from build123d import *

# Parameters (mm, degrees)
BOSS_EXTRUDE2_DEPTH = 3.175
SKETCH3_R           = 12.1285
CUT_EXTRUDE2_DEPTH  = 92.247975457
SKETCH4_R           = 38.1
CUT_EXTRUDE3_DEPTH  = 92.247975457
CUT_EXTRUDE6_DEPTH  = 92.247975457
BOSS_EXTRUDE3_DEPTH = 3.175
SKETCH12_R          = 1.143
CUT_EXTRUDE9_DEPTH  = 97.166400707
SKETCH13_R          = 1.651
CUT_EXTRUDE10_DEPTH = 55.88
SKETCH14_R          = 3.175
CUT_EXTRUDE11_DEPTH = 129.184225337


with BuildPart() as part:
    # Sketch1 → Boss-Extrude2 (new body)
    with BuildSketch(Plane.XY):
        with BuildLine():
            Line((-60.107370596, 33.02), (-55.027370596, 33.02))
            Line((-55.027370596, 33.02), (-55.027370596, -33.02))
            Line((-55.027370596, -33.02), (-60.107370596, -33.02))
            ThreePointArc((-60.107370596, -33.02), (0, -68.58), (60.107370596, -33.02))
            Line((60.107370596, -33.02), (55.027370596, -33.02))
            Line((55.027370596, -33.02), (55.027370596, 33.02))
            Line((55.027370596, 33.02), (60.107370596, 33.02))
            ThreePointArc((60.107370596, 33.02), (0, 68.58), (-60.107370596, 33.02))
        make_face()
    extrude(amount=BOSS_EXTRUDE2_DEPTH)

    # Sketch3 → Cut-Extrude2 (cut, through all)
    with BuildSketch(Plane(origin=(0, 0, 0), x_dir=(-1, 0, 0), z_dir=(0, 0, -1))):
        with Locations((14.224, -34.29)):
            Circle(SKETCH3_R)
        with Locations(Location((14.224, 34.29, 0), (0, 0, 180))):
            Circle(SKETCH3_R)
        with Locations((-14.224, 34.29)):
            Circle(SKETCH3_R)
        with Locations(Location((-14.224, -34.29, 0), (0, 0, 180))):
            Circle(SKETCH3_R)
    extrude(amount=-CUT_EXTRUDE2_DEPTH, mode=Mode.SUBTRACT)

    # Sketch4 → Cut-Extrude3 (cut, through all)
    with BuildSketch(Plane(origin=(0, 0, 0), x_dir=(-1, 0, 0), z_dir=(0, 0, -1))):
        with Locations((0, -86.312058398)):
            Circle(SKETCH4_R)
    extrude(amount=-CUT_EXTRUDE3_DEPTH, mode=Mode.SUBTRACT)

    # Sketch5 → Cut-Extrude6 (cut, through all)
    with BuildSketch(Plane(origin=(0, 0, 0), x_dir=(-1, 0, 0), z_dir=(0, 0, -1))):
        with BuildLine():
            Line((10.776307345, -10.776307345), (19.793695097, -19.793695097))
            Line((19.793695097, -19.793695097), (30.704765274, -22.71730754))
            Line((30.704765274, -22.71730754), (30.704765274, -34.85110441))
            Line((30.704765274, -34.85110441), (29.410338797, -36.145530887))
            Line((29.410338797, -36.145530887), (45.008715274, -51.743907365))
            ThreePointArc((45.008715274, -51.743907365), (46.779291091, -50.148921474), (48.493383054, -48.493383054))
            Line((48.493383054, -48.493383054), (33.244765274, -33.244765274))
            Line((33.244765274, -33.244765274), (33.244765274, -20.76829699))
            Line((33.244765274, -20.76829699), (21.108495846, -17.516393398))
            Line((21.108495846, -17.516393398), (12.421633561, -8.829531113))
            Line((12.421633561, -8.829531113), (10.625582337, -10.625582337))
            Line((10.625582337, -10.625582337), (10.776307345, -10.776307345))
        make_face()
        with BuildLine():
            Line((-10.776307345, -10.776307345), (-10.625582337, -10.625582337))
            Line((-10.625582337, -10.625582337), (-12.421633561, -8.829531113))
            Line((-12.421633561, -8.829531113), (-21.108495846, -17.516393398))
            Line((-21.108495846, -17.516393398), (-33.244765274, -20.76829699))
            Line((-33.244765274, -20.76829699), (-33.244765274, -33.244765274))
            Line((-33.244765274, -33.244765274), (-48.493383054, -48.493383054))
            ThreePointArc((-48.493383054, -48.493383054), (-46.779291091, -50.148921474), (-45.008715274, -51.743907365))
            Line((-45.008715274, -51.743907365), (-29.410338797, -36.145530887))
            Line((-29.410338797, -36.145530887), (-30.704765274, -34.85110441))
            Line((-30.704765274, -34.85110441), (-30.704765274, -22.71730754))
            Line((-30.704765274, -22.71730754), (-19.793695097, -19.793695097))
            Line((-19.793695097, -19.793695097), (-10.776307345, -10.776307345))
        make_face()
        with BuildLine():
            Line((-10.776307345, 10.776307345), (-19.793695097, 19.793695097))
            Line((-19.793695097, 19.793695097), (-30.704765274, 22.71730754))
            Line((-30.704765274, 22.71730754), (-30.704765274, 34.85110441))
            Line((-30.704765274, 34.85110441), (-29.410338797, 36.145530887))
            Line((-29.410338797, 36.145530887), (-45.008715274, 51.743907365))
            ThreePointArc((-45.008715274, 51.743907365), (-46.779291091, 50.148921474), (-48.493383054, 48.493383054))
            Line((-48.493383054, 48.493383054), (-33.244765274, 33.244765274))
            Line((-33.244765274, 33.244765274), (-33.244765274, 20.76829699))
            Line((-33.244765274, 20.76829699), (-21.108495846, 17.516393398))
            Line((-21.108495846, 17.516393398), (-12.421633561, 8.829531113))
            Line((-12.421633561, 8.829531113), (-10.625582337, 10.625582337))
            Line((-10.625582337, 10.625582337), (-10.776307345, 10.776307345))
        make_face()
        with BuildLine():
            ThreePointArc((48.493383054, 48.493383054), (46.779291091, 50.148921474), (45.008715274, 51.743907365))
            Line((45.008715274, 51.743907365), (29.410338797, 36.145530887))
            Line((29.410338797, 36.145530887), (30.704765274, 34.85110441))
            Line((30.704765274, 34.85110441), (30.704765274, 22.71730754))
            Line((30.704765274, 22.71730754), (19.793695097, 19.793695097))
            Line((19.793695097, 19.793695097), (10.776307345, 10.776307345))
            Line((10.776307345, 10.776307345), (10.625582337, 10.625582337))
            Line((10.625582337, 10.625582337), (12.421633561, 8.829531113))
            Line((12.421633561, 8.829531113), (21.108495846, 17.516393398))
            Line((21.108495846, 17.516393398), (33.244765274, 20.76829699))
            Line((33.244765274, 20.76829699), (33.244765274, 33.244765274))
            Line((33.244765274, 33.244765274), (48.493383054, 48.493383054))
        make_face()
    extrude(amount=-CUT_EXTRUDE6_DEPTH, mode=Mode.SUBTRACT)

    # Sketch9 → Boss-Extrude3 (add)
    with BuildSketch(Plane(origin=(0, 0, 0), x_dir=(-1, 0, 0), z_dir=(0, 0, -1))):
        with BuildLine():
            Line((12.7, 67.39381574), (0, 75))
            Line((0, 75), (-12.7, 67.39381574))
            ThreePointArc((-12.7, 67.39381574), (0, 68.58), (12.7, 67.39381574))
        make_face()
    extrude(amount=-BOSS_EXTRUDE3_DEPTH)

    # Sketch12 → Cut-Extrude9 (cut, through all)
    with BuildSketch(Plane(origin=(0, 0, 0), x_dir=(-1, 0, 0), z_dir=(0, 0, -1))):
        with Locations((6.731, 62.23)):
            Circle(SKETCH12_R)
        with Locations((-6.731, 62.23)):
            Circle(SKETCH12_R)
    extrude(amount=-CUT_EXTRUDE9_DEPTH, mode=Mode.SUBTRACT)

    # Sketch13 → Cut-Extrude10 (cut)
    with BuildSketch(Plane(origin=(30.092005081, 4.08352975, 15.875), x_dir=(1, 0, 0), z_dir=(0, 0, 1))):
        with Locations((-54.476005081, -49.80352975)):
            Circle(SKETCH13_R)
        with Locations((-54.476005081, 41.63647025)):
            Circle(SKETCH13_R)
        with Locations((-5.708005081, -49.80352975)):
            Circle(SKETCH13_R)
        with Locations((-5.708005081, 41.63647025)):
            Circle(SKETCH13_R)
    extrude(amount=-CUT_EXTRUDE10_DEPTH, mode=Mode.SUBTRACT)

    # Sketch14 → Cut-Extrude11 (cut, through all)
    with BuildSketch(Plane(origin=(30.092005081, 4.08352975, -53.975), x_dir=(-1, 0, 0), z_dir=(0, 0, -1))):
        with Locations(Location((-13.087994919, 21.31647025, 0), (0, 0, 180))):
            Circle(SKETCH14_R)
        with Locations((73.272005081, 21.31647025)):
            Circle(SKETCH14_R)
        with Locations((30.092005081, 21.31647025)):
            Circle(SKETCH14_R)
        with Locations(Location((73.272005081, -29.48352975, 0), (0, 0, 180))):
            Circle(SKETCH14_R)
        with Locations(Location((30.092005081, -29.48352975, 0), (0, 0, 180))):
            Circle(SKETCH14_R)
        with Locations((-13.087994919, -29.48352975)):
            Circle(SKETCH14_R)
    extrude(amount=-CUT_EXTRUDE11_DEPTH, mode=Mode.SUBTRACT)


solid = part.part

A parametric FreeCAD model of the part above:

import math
import FreeCAD as App
import Part
import Sketcher
from FreeCAD import Vector
Q = App.Units.Quantity

doc = App.newDocument("Part")
body = doc.addObject("PartDesign::Body", "Body")

sketch1 = body.newObject("Sketcher::SketchObject", "Sketch")
sketch1.AttachmentSupport = (doc.getObject("XY_Plane"), [""])
sketch1.MapMode = "FlatFace"
sketch1.addGeometry([
    Part.LineSegment(Vector(-60, 33, 0), Vector(-55, 33, 0)),
    Part.LineSegment(Vector(-55, 33, 0), Vector(-55, -33, 0)),
    Part.LineSegment(Vector(-55, -33, 0), Vector(-60, -33, 0)),
    Part.ArcOfCircle(Part.Circle(Vector(0, 0, 0), Vector(0, 0, 1), 69), math.radians(-151), math.radians(-29)),
    Part.LineSegment(Vector(60, -33, 0), Vector(55, -33, 0)),
    Part.LineSegment(Vector(55, -33, 0), Vector(55, 33, 0)),
    Part.LineSegment(Vector(55, 33, 0), Vector(60, 33, 0)),
    Part.ArcOfCircle(Part.Circle(Vector(0, 0, 0), Vector(0, 0, 1), 69), math.radians(29), math.radians(151)),
], False)
sketch1.addConstraint([
    Sketcher.Constraint("Coincident", 0, 2, 1, 1),
    Sketcher.Constraint("Coincident", 1, 2, 2, 1),
    Sketcher.Constraint("Coincident", 2, 2, 3, 1),
    Sketcher.Constraint("Coincident", 3, 2, 4, 1),
    Sketcher.Constraint("Coincident", 4, 2, 5, 1),
    Sketcher.Constraint("Coincident", 5, 2, 6, 1),
    Sketcher.Constraint("Coincident", 6, 2, 7, 1),
    Sketcher.Constraint("Coincident", 7, 2, 0, 1),
    Sketcher.Constraint("Horizontal", 0),
    Sketcher.Constraint("Vertical", 1),
    Sketcher.Constraint("Horizontal", 2),
    Sketcher.Constraint("Horizontal", 4),
    Sketcher.Constraint("Vertical", 5),
    Sketcher.Constraint("Horizontal", 6),
    Sketcher.Constraint("Coincident", 3, 3, -1, 1),
    Sketcher.Constraint("Coincident", 7, 3, -1, 1),
    Sketcher.Constraint("Equal", 3, 7),
    Sketcher.Constraint("Symmetric", 0, 2, 4, 2, -1, 1),
    Sketcher.Constraint("Horizontal", 2, 2, 3, 2),
    Sketcher.Constraint("Horizontal", 0, 2, 5, 2),
    Sketcher.Constraint("Radius", 3, Q("2.7 in")),
    Sketcher.Constraint("DistanceX", 0, 1, 0, 2, Q("0.2 in")),
    Sketcher.Constraint("DistanceY", 1, 2, 1, 1, Q("2.6 in")),
])
pad1 = body.newObject("PartDesign::Pad", "Pad")
pad1.Profile = sketch1
pad1.Length = Q("0.125 in")

sketch2 = body.newObject("Sketcher::SketchObject", "Sketch001")
sketch2.AttachmentSupport = (doc.getObject("XY_Plane"), [""])
sketch2.MapMode = "FlatFace"
sketch2.addGeometry([
    Part.Circle(Vector(-14, -34, 0), Vector(0, 0, 1), 12),
    Part.Circle(Vector(-14, 34, 0), Vector(0, 0, 1), 12),
    Part.Circle(Vector(14, 34, 0), Vector(0, 0, 1), 12),
    Part.Circle(Vector(14, -34, 0), Vector(0, 0, 1), 12),
], False)
sketch2.addConstraint([
    Sketcher.Constraint("Equal", 0, 1),
    Sketcher.Constraint("Equal", 1, 2),
    Sketcher.Constraint("Equal", 2, 3),
    Sketcher.Constraint("Symmetric", 0, 3, 2, 3, -1, 1),
    Sketcher.Constraint("Symmetric", 1, 3, 3, 3, -1, 1),
    Sketcher.Constraint("Symmetric", 1, 3, 2, 3, -2),
    Sketcher.Constraint("Diameter", 0, Q("0.955 in")),
    Sketcher.Constraint("DistanceY", 0, 3, 1, 3, Q("2.7 in")),
    Sketcher.Constraint("DistanceX", 0, 3, -1, 1, Q("0.56 in")),
])
pocket1 = body.newObject("PartDesign::Pocket", "Pocket")
pocket1.Profile = sketch2
pocket1.Type = "ThroughAll"
pocket1.Reversed = True

sketch3 = body.newObject("Sketcher::SketchObject", "Sketch002")
sketch3.AttachmentSupport = (doc.getObject("XY_Plane"), [""])
sketch3.MapMode = "FlatFace"
sketch3.addGeometry(Part.Circle(Vector(0, -86, 0), Vector(0, 0, 1), 38), False)
sketch3.addConstraint([
    Sketcher.Constraint("PointOnObject", 0, 3, -2),
    Sketcher.Constraint("Diameter", 0, Q("3 in")),
    Sketcher.Constraint("DistanceY", 0, 3, -1, 1, Q("86.312058 mm")),
])
pocket2 = body.newObject("PartDesign::Pocket", "Pocket001")
pocket2.Profile = sketch3
pocket2.Type = "ThroughAll"
pocket2.Reversed = True

sketch4 = body.newObject("Sketcher::SketchObject", "Sketch003")
sketch4.AttachmentSupport = (doc.getObject("XY_Plane"), [""])
sketch4.MapMode = "FlatFace"
sketch4.addGeometry([
    Part.LineSegment(Vector(-19.8, -19.8, 0), Vector(-30.7, -22.7, 0)),
    Part.LineSegment(Vector(-30.7, -22.7, 0), Vector(-30.7, -34.9, 0)),
    Part.LineSegment(Vector(-30.7, -34.9, 0), Vector(-29.4, -36.1, 0)),
    Part.LineSegment(Vector(-29.4, -36.1, 0), Vector(-45, -51.7, 0)),
    Part.ArcOfCircle(Part.Circle(Vector(0, 0, 0), Vector(0, 0, 1), 68.6), math.radians(-135), math.radians(-131.02)),
    Part.LineSegment(Vector(-48.5, -48.5, 0), Vector(-33.2, -33.2, 0)),
    Part.LineSegment(Vector(-33.2, -33.2, 0), Vector(-33.2, -20.8, 0)),
    Part.LineSegment(Vector(-33.2, -20.8, 0), Vector(-21.1, -17.5, 0)),
    Part.LineSegment(Vector(-21.1, -17.5, 0), Vector(-12.4, -8.8, 0)),
    Part.LineSegment(Vector(-12.4, -8.8, 0), Vector(-10.6, -10.6, 0)),
    Part.LineSegment(Vector(-10.6, -10.6, 0), Vector(-19.8, -19.8, 0)),
    Part.LineSegment(Vector(10.6, -10.6, 0), Vector(12.4, -8.8, 0)),
    Part.LineSegment(Vector(12.4, -8.8, 0), Vector(21.1, -17.5, 0)),
    Part.LineSegment(Vector(21.1, -17.5, 0), Vector(33.2, -20.8, 0)),
    Part.LineSegment(Vector(33.2, -20.8, 0), Vector(33.2, -33.2, 0)),
    Part.LineSegment(Vector(33.2, -33.2, 0), Vector(48.5, -48.5, 0)),
    Part.ArcOfCircle(Part.Circle(Vector(0, 0, 0), Vector(0, 0, 1), 68.6), math.radians(-48.98), math.radians(-45)),
    Part.LineSegment(Vector(45, -51.7, 0), Vector(29.4, -36.1, 0)),
    Part.LineSegment(Vector(29.4, -36.1, 0), Vector(30.7, -34.9, 0)),
    Part.LineSegment(Vector(30.7, -34.9, 0), Vector(30.7, -22.7, 0)),
    Part.LineSegment(Vector(30.7, -22.7, 0), Vector(19.8, -19.8, 0)),
    Part.LineSegment(Vector(19.8, -19.8, 0), Vector(10.6, -10.6, 0)),
    Part.LineSegment(Vector(19.8, 19.8, 0), Vector(30.7, 22.7, 0)),
    Part.LineSegment(Vector(30.7, 22.7, 0), Vector(30.7, 34.9, 0)),
    Part.LineSegment(Vector(30.7, 34.9, 0), Vector(29.4, 36.1, 0)),
    Part.LineSegment(Vector(29.4, 36.1, 0), Vector(45, 51.7, 0)),
    Part.ArcOfCircle(Part.Circle(Vector(0, 0, 0), Vector(0, 0, 1), 68.6), math.radians(45), math.radians(48.98)),
    Part.LineSegment(Vector(48.5, 48.5, 0), Vector(33.2, 33.2, 0)),
    Part.LineSegment(Vector(33.2, 33.2, 0), Vector(33.2, 20.8, 0)),
    Part.LineSegment(Vector(33.2, 20.8, 0), Vector(21.1, 17.5, 0)),
    Part.LineSegment(Vector(21.1, 17.5, 0), Vector(12.4, 8.8, 0)),
    Part.LineSegment(Vector(12.4, 8.8, 0), Vector(10.6, 10.6, 0)),
    Part.LineSegment(Vector(10.6, 10.6, 0), Vector(19.8, 19.8, 0)),
    Part.ArcOfCircle(Part.Circle(Vector(0, 0, 0), Vector(0, 0, 1), 68.6), math.radians(131.02), math.radians(135)),
    Part.LineSegment(Vector(-45, 51.7, 0), Vector(-29.4, 36.1, 0)),
    Part.LineSegment(Vector(-29.4, 36.1, 0), Vector(-30.7, 34.9, 0)),
    Part.LineSegment(Vector(-30.7, 34.9, 0), Vector(-30.7, 22.7, 0)),
    Part.LineSegment(Vector(-30.7, 22.7, 0), Vector(-19.8, 19.8, 0)),
    Part.LineSegment(Vector(-19.8, 19.8, 0), Vector(-10.6, 10.6, 0)),
    Part.LineSegment(Vector(-10.6, 10.6, 0), Vector(-12.4, 8.8, 0)),
    Part.LineSegment(Vector(-12.4, 8.8, 0), Vector(-21.1, 17.5, 0)),
    Part.LineSegment(Vector(-21.1, 17.5, 0), Vector(-33.2, 20.8, 0)),
    Part.LineSegment(Vector(-33.2, 20.8, 0), Vector(-33.2, 33.2, 0)),
    Part.LineSegment(Vector(-33.2, 33.2, 0), Vector(-48.5, 48.5, 0)),
], False)
sketch4.addConstraint([
    Sketcher.Constraint("Coincident", 0, 2, 1, 1),
    Sketcher.Constraint("Coincident", 1, 2, 2, 1),
    Sketcher.Constraint("Coincident", 2, 2, 3, 1),
    Sketcher.Constraint("Coincident", 3, 2, 4, 2),
    Sketcher.Constraint("Coincident", 4, 1, 5, 1),
    Sketcher.Constraint("Coincident", 5, 2, 6, 1),
    Sketcher.Constraint("Coincident", 6, 2, 7, 1),
    Sketcher.Constraint("Coincident", 7, 2, 8, 1),
    Sketcher.Constraint("Coincident", 8, 2, 9, 1),
    Sketcher.Constraint("Coincident", 9, 2, 10, 1),
    Sketcher.Constraint("Coincident", 10, 2, 0, 1),
    Sketcher.Constraint("Coincident", 11, 2, 12, 1),
    Sketcher.Constraint("Coincident", 12, 2, 13, 1),
    Sketcher.Constraint("Coincident", 13, 2, 14, 1),
    Sketcher.Constraint("Coincident", 14, 2, 15, 1),
    Sketcher.Constraint("Coincident", 15, 2, 16, 2),
    Sketcher.Constraint("Coincident", 16, 1, 17, 1),
    Sketcher.Constraint("Coincident", 17, 2, 18, 1),
    Sketcher.Constraint("Coincident", 18, 2, 19, 1),
    Sketcher.Constraint("Coincident", 19, 2, 20, 1),
    Sketcher.Constraint("Coincident", 20, 2, 21, 1),
    Sketcher.Constraint("Coincident", 21, 2, 11, 1),
    Sketcher.Constraint("Coincident", 22, 2, 23, 1),
    Sketcher.Constraint("Coincident", 23, 2, 24, 1),
    Sketcher.Constraint("Coincident", 24, 2, 25, 1),
    Sketcher.Constraint("Coincident", 25, 2, 26, 2),
    Sketcher.Constraint("Coincident", 26, 1, 27, 1),
    Sketcher.Constraint("Coincident", 27, 2, 28, 1),
    Sketcher.Constraint("Coincident", 28, 2, 29, 1),
    Sketcher.Constraint("Coincident", 29, 2, 30, 1),
    Sketcher.Constraint("Coincident", 30, 2, 31, 1),
    Sketcher.Constraint("Coincident", 31, 2, 32, 1),
    Sketcher.Constraint("Coincident", 32, 2, 22, 1),
    Sketcher.Constraint("Coincident", 33, 1, 34, 1),
    Sketcher.Constraint("Coincident", 34, 2, 35, 1),
    Sketcher.Constraint("Coincident", 35, 2, 36, 1),
    Sketcher.Constraint("Coincident", 36, 2, 37, 1),
    Sketcher.Constraint("Coincident", 37, 2, 38, 1),
    Sketcher.Constraint("Coincident", 38, 2, 39, 1),
    Sketcher.Constraint("Coincident", 39, 2, 40, 1),
    Sketcher.Constraint("Coincident", 40, 2, 41, 1),
    Sketcher.Constraint("Coincident", 41, 2, 42, 1),
    Sketcher.Constraint("Coincident", 42, 2, 43, 1),
    Sketcher.Constraint("Coincident", 43, 2, 33, 2),
    Sketcher.Constraint("Vertical", 1),
    Sketcher.Constraint("Vertical", 6),
    Sketcher.Constraint("Vertical", 14),
    Sketcher.Constraint("Vertical", 19),
    Sketcher.Constraint("Vertical", 23),
    Sketcher.Constraint("Vertical", 28),
    Sketcher.Constraint("Vertical", 36),
    Sketcher.Constraint("Vertical", 42),
    Sketcher.Constraint("Coincident", 4, 3, -1, 1),
    Sketcher.Constraint("Coincident", 16, 3, -1, 1),
    Sketcher.Constraint("Coincident", 26, 3, -1, 1),
    Sketcher.Constraint("Coincident", 33, 3, -1, 1),
    Sketcher.Constraint("Equal", 4, 16),
    Sketcher.Constraint("Equal", 16, 26),
    Sketcher.Constraint("Equal", 26, 33),
    Sketcher.Constraint("Symmetric", 0, 2, 22, 2, -1, 1),
    Sketcher.Constraint("Symmetric", 2, 2, 24, 2, -1, 1),
    Sketcher.Constraint("Symmetric", 5, 2, 27, 2, -1, 1),
    Sketcher.Constraint("Symmetric", 7, 2, 29, 2, -1, 1),
    Sketcher.Constraint("Symmetric", 8, 2, 30, 2, -1, 1),
    Sketcher.Constraint("Symmetric", 9, 2, 31, 2, -1, 1),
    Sketcher.Constraint("Symmetric", 10, 2, 32, 2, -1, 1),
    Sketcher.Constraint("Symmetric", 17, 2, 34, 2, -1, 1),
    Sketcher.Constraint("Symmetric", 18, 2, 35, 2, -1, 1),
    Sketcher.Constraint("Symmetric", 20, 2, 37, 2, -1, 1),
    Sketcher.Constraint("Symmetric", 21, 2, 38, 2, -1, 1),
    Sketcher.Constraint("Symmetric", 11, 2, 39, 2, -1, 1),
    Sketcher.Constraint("Symmetric", 12, 2, 40, 2, -1, 1),
    Sketcher.Constraint("Symmetric", 13, 2, 41, 2, -1, 1),
    Sketcher.Constraint("Symmetric", 8, 2, 11, 2, -2),
    Sketcher.Constraint("Symmetric", 7, 2, 12, 2, -2),
    Sketcher.Constraint("Symmetric", 6, 2, 13, 2, -2),
    Sketcher.Constraint("Symmetric", 2, 2, 17, 2, -2),
    Sketcher.Constraint("Symmetric", 1, 2, 18, 2, -2),
    Sketcher.Constraint("Symmetric", 10, 2, 20, 2, -2),
    Sketcher.Constraint("Symmetric", 9, 2, 21, 2, -2),
    Sketcher.Constraint("Perpendicular", 2, 3),
    Sketcher.Constraint("Parallel", 3, 5),
    Sketcher.Constraint("Parallel", 0, 7),
    Sketcher.Constraint("Parallel", 5, 8),
    Sketcher.Constraint("Perpendicular", 8, 9),
    Sketcher.Constraint("Perpendicular", 9, 10),
    Sketcher.Constraint("Parallel", 10, 11),
    Sketcher.Constraint("Parallel", 12, 15),
    Sketcher.Constraint("Parallel", 15, 17),
    Sketcher.Constraint("Parallel", 13, 20),
    Sketcher.Constraint("Parallel", 21, 24),
    Sketcher.Constraint("Perpendicular", 24, 25),
    Sketcher.Constraint("Parallel", 25, 27),
    Sketcher.Constraint("Parallel", 22, 29),
    Sketcher.Constraint("Perpendicular", 32, 34),
    Sketcher.Constraint("Parallel", 20, 37),
    Sketcher.Constraint("Parallel", 40, 43),
    Sketcher.Constraint("Horizontal", 5, 2, 14, 2),
    Sketcher.Constraint("Horizontal", 27, 2, 42, 2),
    Sketcher.Constraint("Radius", 4, Q("2.7 in")),
    Sketcher.Constraint("Angle", 0, Q("-165 deg")),
    Sketcher.Constraint("Distance", 9, Q("0.1 in")),
    Sketcher.Constraint("DistanceX", 5, 2, 1, 2, Q("0.1 in")),
    Sketcher.Constraint("DistanceY", 6, 1, 6, 2, Q("12.476468 mm")),
    Sketcher.Constraint("DistanceY", 3, 2, 0, 2, Q("29.0266 mm")),
    Sketcher.Constraint("DistanceX", 7, 2, 10, 2, Q("1.314801 mm")),
    Sketcher.Constraint("DistanceY", 6, 2, 10, 2, Q("0.974602 mm")),
    Sketcher.Constraint("Distance", 8, Q("12.285078 mm")),
    Sketcher.Constraint("DistanceY", 1, 2, 1, 1, Q("12.133797 mm")),
    Sketcher.Constraint("DistanceX", 2, 2, -1, 1, Q("29.410339 mm")),
    Sketcher.Constraint("DistanceY", 2, 2, -1, 1, Q("36.145531 mm")),
])
pocket3 = body.newObject("PartDesign::Pocket", "Pocket002")
pocket3.Profile = sketch4
pocket3.Type = "ThroughAll"
pocket3.Reversed = True

sketch5 = body.newObject("Sketcher::SketchObject", "Sketch004")
sketch5.AttachmentSupport = (doc.getObject("XY_Plane"), [""])
sketch5.MapMode = "FlatFace"
sketch5.addGeometry([
    Part.LineSegment(Vector(-13, 67, 0), Vector(0, 75, 0)),
    Part.LineSegment(Vector(0, 75, 0), Vector(13, 67, 0)),
    Part.ArcOfCircle(Part.Circle(Vector(0, 0, 0), Vector(0, 0, 1), 69), math.radians(79), math.radians(101)),
], False)
sketch5.addConstraint([
    Sketcher.Constraint("Coincident", 0, 2, 1, 1),
    Sketcher.Constraint("Coincident", 1, 2, 2, 1),
    Sketcher.Constraint("Coincident", 2, 2, 0, 1),
    Sketcher.Constraint("Coincident", 2, 3, -1, 1),
    Sketcher.Constraint("PointOnObject", 0, 2, -2),
    Sketcher.Constraint("Horizontal", 1, 2, 2, 2),
    Sketcher.Constraint("Radius", 2, Q("2.7 in")),
    Sketcher.Constraint("DistanceX", 2, 2, 1, 2, Q("1 in")),
    Sketcher.Constraint("DistanceY", -1, 1, 0, 2, Q("75 mm")),
])
pad2 = body.newObject("PartDesign::Pad", "Pad001")
pad2.Profile = sketch5
pad2.Length = Q("0.125 in")

sketch6 = body.newObject("Sketcher::SketchObject", "Sketch005")
sketch6.AttachmentSupport = (doc.getObject("XY_Plane"), [""])
sketch6.MapMode = "FlatFace"
sketch6.addGeometry([
    Part.Circle(Vector(-6.7, 62.2, 0), Vector(0, 0, 1), 1.1),
    Part.Circle(Vector(6.7, 62.2, 0), Vector(0, 0, 1), 1.1),
], False)
sketch6.addConstraint([
    Sketcher.Constraint("Equal", 0, 1),
    Sketcher.Constraint("Symmetric", 0, 3, 1, 3, -2),
    Sketcher.Constraint("Diameter", 0, Q("0.09 in")),
    Sketcher.Constraint("DistanceY", -1, 1, 0, 3, Q("2.45 in")),
    Sketcher.Constraint("DistanceX", 0, 3, 1, 3, Q("0.53 in")),
])
pocket4 = body.newObject("PartDesign::Pocket", "Pocket003")
pocket4.Profile = sketch6
pocket4.Type = "ThroughAll"
pocket4.Reversed = True

sketch7 = body.newObject("Sketcher::SketchObject", "Sketch006")
sketch7.AttachmentSupport = (doc.getObject("XY_Plane"), [""])
sketch7.MapMode = "FlatFace"
sketch7.AttachmentOffset = App.Placement(Vector(0, 0, 0.625 * 25.4), App.Rotation())
sketch7.addGeometry([
    Part.Circle(Vector(-24.4, -45.7, 0), Vector(0, 0, 1), 1.7),
    Part.Circle(Vector(-24.4, 45.7, 0), Vector(0, 0, 1), 1.7),
    Part.Circle(Vector(24.4, -45.7, 0), Vector(0, 0, 1), 1.7),
    Part.Circle(Vector(24.4, 45.7, 0), Vector(0, 0, 1), 1.7),
], False)
sketch7.addConstraint([
    Sketcher.Constraint("Equal", 0, 1),
    Sketcher.Constraint("Equal", 1, 2),
    Sketcher.Constraint("Equal", 2, 3),
    Sketcher.Constraint("Symmetric", 1, 3, 2, 3, -1, 1),
    Sketcher.Constraint("Symmetric", 0, 3, 3, 3, -1, 1),
    Sketcher.Constraint("Symmetric", 0, 3, 2, 3, -2),
    Sketcher.Constraint("Diameter", 0, Q("0.13 in")),
    Sketcher.Constraint("DistanceY", 0, 3, -1, 1, Q("1.8 in")),
    Sketcher.Constraint("DistanceX", 0, 3, -1, 1, Q("0.96 in")),
])
pocket5 = body.newObject("PartDesign::Pocket", "Pocket004")
pocket5.Profile = sketch7
pocket5.Length = Q("2.2 in")

sketch8 = body.newObject("Sketcher::SketchObject", "Sketch007")
sketch8.AttachmentSupport = (doc.getObject("XY_Plane"), [""])
sketch8.MapMode = "FlatFace"
sketch8.AttachmentOffset = App.Placement(Vector(0, 0, -2.125 * 25.4), App.Rotation())
sketch8.addGeometry([
    Part.Circle(Vector(43.2, 25.4, 0), Vector(0, 0, 1), 3.2),
    Part.Circle(Vector(-43.2, 25.4, 0), Vector(0, 0, 1), 3.2),
    Part.Circle(Vector(0, 25.4, 0), Vector(0, 0, 1), 3.2),
    Part.Circle(Vector(-43.2, -25.4, 0), Vector(0, 0, 1), 3.2),
    Part.Circle(Vector(0, -25.4, 0), Vector(0, 0, 1), 3.2),
    Part.Circle(Vector(43.2, -25.4, 0), Vector(0, 0, 1), 3.2),
], False)
sketch8.addConstraint([
    Sketcher.Constraint("Equal", 0, 1),
    Sketcher.Constraint("Equal", 1, 2),
    Sketcher.Constraint("Equal", 2, 3),
    Sketcher.Constraint("Equal", 3, 4),
    Sketcher.Constraint("Equal", 4, 5),
    Sketcher.Constraint("Symmetric", 0, 3, 3, 3, -1, 1),
    Sketcher.Constraint("Symmetric", 2, 3, 4, 3, -1, 1),
    Sketcher.Constraint("Symmetric", 1, 3, 5, 3, -1, 1),
    Sketcher.Constraint("Symmetric", 0, 3, 1, 3, -2),
    Sketcher.Constraint("PointOnObject", 2, 3, -2),
    Sketcher.Constraint("Horizontal", 1, 3, 2, 3),
    Sketcher.Constraint("Diameter", 0, Q("0.25 in")),
    Sketcher.Constraint("DistanceY", -1, 1, 0, 3, Q("1 in")),
    Sketcher.Constraint("DistanceX", -1, 1, 0, 3, Q("1.7 in")),
])
pocket6 = body.newObject("PartDesign::Pocket", "Pocket005")
pocket6.Profile = sketch8
pocket6.Type = "ThroughAll"
pocket6.Reversed = True

doc.recompute()
